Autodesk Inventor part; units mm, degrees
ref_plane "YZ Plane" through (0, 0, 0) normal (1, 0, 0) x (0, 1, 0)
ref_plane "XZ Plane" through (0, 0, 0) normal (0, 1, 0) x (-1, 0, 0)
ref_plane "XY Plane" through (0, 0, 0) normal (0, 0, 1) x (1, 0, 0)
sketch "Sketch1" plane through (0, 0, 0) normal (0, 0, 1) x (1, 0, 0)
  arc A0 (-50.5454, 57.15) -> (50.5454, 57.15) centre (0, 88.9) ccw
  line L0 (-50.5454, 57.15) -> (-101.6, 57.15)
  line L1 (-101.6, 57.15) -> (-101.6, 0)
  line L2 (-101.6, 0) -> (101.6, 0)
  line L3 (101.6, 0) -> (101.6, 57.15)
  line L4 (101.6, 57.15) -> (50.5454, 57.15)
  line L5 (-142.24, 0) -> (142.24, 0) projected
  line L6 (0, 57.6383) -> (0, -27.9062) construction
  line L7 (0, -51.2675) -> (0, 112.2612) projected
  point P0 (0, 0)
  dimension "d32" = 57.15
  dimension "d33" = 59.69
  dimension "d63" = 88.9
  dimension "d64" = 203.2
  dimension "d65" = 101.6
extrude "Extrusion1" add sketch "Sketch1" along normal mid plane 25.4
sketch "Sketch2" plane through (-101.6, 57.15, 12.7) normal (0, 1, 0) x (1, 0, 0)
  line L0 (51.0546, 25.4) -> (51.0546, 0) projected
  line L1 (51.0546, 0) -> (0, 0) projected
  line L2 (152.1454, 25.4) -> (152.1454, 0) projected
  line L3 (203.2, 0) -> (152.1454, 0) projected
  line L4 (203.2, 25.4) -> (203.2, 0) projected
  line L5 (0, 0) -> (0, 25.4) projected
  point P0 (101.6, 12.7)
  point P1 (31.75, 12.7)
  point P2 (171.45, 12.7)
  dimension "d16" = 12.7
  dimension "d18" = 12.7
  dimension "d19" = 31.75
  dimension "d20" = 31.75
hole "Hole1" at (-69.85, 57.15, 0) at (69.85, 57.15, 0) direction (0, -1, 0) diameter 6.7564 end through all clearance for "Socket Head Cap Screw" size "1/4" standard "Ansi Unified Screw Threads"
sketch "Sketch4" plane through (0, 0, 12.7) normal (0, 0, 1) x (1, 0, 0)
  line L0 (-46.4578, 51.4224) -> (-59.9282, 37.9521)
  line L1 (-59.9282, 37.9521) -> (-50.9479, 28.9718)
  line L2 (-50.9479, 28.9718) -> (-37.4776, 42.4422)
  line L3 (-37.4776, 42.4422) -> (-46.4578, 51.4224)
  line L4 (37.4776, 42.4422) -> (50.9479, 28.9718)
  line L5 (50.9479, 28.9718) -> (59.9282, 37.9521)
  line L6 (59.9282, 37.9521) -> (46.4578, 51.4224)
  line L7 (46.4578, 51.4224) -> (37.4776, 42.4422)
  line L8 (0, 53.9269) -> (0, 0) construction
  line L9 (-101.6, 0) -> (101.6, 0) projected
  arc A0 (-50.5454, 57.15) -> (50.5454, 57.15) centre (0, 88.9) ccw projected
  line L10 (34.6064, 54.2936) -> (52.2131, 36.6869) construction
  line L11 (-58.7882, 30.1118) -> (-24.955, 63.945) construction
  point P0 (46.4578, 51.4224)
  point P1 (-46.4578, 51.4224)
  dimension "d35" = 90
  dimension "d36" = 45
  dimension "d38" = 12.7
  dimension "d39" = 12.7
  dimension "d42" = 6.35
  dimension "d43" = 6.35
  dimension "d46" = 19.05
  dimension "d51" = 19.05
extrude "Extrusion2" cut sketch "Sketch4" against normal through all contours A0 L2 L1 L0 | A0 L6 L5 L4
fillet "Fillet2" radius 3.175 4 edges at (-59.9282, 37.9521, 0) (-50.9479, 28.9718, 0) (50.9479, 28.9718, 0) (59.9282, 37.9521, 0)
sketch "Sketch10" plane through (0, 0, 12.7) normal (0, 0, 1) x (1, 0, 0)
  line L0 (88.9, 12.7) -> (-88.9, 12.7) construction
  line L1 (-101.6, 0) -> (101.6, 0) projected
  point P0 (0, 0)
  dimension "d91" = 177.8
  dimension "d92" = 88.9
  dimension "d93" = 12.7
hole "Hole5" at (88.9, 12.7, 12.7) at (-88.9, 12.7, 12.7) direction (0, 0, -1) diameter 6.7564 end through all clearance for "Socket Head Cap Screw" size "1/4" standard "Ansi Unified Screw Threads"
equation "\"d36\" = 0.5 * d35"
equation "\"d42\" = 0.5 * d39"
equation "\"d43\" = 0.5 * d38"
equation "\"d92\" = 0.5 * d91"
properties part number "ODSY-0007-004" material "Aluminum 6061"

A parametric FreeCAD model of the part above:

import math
import FreeCAD as App
import Part
import Sketcher
from FreeCAD import Vector
Q = App.Units.Quantity


def edges_at(feature, points):
    """Names of the edges that pass closest to the given points."""
    edges = feature.Shape.Edges
    near = lambda p: min(range(len(edges)), key=lambda i: edges[i].distToShape(Part.Vertex(*p))[0])
    return sorted({f"Edge{near(p) + 1}" for p in points})

doc = App.newDocument("Part")
body = doc.addObject("PartDesign::Body", "Body")

sketch1 = body.newObject("Sketcher::SketchObject", "Sketch")
sketch1.AttachmentSupport = (doc.getObject("XY_Plane"), [""])
sketch1.MapMode = "FlatFace"
sketch1.addGeometry(Part.LineSegment(Vector(-51, 57, 0), Vector(-102, 57, 0)), False)
sketch1.addGeometry(Part.LineSegment(Vector(-102, 57, 0), Vector(-102, 0, 0)), False)
sketch1.addGeometry(Part.LineSegment(Vector(-102, 0, 0), Vector(102, 0, 0)), False)
sketch1.addGeometry(Part.LineSegment(Vector(102, 0, 0), Vector(102, 57, 0)), False)
sketch1.addGeometry(Part.LineSegment(Vector(102, 57, 0), Vector(51, 57, 0)), False)
sketch1.addGeometry(Part.ArcOfCircle(Part.Circle(Vector(0, 89, 0), Vector(0, 0, 1), 60), math.radians(-148), math.radians(-32)), False)
sketch1.addConstraint(Sketcher.Constraint("Coincident", 0, 2, 1, 1))
sketch1.addConstraint(Sketcher.Constraint("Coincident", 1, 2, 2, 1))
sketch1.addConstraint(Sketcher.Constraint("Coincident", 2, 2, 3, 1))
sketch1.addConstraint(Sketcher.Constraint("Coincident", 3, 2, 4, 1))
sketch1.addConstraint(Sketcher.Constraint("Coincident", 4, 2, 5, 2))
sketch1.addConstraint(Sketcher.Constraint("Coincident", 5, 1, 0, 1))
sketch1.addConstraint(Sketcher.Constraint("Horizontal", 0))
sketch1.addConstraint(Sketcher.Constraint("Vertical", 1))
sketch1.addConstraint(Sketcher.Constraint("Horizontal", 2))
sketch1.addConstraint(Sketcher.Constraint("Vertical", 3))
sketch1.addConstraint(Sketcher.Constraint("Horizontal", 4))
sketch1.addConstraint(Sketcher.Constraint("Symmetric", 1, 2, 2, 2, -1, 1))
sketch1.addConstraint(Sketcher.Constraint("Symmetric", 4, 2, 5, 1, -2))
sketch1.addConstraint(Sketcher.Constraint("DistanceX", 2, 1, 2, 2, Q("8 in")))
sketch1.addConstraint(Sketcher.Constraint("Radius", 5, Q("2.35 in")))
sketch1.addConstraint(Sketcher.Constraint("DistanceY", 1, 2, 1, 1, Q("2.25 in")))
sketch1.addConstraint(Sketcher.Constraint("DistanceY", -1, 1, 5, 3, Q("3.5 in")))
pad1 = body.newObject("PartDesign::Pad", "Pad")
pad1.Profile = sketch1
pad1.Length = Q("1 in")
pad1.Midplane = True

sketch2 = body.newObject("Sketcher::SketchObject", "Sketch001")
sketch2.AttachmentSupport = (doc.getObject("XZ_Plane"), [""])
sketch2.MapMode = "FlatFace"
sketch2.AttachmentOffset = App.Placement(Vector(0, 0, -2.25 * 25.4), App.Rotation())
sketch2.addGeometry(Part.Circle(Vector(-69.8, 0, 0), Vector(0, 0, 1), 3.4), False)
sketch2.addGeometry(Part.Circle(Vector(69.8, 0, 0), Vector(0, 0, 1), 3.4), False)
sketch2.addConstraint(Sketcher.Constraint("Equal", 0, 1))
sketch2.addConstraint(Sketcher.Constraint("Symmetric", 0, 3, 1, 3, -1, 1))
sketch2.addConstraint(Sketcher.Constraint("PointOnObject", 0, 3, -1))
sketch2.addConstraint(Sketcher.Constraint("Diameter", 0, Q("0.266 in")))
sketch2.addConstraint(Sketcher.Constraint("DistanceX", 0, 3, 1, 3, Q("5.5 in")))
doc.recompute()
hole = body.newObject("PartDesign::Hole", "Hole")
hole.Profile = sketch2
hole.ThreadType = "None"
hole.Diameter = Q("0.266 in")
hole.DepthType = "ThroughAll"
hole.Reversed = True

sketch3 = body.newObject("Sketcher::SketchObject", "Sketch002")
sketch3.AttachmentSupport = (doc.getObject("XY_Plane"), [""])
sketch3.MapMode = "FlatFace"
sketch3.AttachmentOffset = App.Placement(Vector(0, 0, 0.5 * 25.4), App.Rotation())
sketch3.addGeometry(Part.ArcOfCircle(Part.Circle(Vector(0, 89, 0), Vector(0, 0, 1), 60), math.radians(-141.11), math.radians(-128.89)), False)
sketch3.addGeometry(Part.LineSegment(Vector(-46, 51, 0), Vector(-60, 38, 0)), False)
sketch3.addGeometry(Part.LineSegment(Vector(-60, 38, 0), Vector(-51, 29, 0)), False)
sketch3.addGeometry(Part.LineSegment(Vector(-51, 29, 0), Vector(-37, 42, 0)), False)
sketch3.addGeometry(Part.ArcOfCircle(Part.Circle(Vector(0, 89, 0), Vector(0, 0, 1), 60), math.radians(-51.11), math.radians(-38.89)), False)
sketch3.addGeometry(Part.LineSegment(Vector(37, 42, 0), Vector(51, 29, 0)), False)
sketch3.addGeometry(Part.LineSegment(Vector(51, 29, 0), Vector(60, 38, 0)), False)
sketch3.addGeometry(Part.LineSegment(Vector(60, 38, 0), Vector(46, 51, 0)), False)
sketch3.addConstraint(Sketcher.Constraint("Coincident", 0, 1, 1, 1))
sketch3.addConstraint(Sketcher.Constraint("Coincident", 1, 2, 2, 1))
sketch3.addConstraint(Sketcher.Constraint("Coincident", 2, 2, 3, 1))
sketch3.addConstraint(Sketcher.Constraint("Coincident", 3, 2, 0, 2))
sketch3.addConstraint(Sketcher.Constraint("Coincident", 4, 1, 5, 1))
sketch3.addConstraint(Sketcher.Constraint("Coincident", 5, 2, 6, 1))
sketch3.addConstraint(Sketcher.Constraint("Coincident", 6, 2, 7, 1))
sketch3.addConstraint(Sketcher.Constraint("Coincident", 7, 2, 4, 2))
sketch3.addConstraint(Sketcher.Constraint("Coincident", 4, 3, 0, 3))
sketch3.addConstraint(Sketcher.Constraint("Equal", 0, 4))
sketch3.addConstraint(Sketcher.Constraint("Symmetric", 3, 2, 4, 1, -2))
sketch3.addConstraint(Sketcher.Constraint("Symmetric", 2, 2, 5, 2, -2))
sketch3.addConstraint(Sketcher.Constraint("Symmetric", 1, 2, 6, 2, -2))
sketch3.addConstraint(Sketcher.Constraint("Perpendicular", 1, 2))
sketch3.addConstraint(Sketcher.Constraint("Perpendicular", 2, 3))
sketch3.addConstraint(Sketcher.Constraint("Perpendicular", 3, 5))
sketch3.addConstraint(Sketcher.Constraint("Perpendicular", 6, 7))
sketch3.addConstraint(Sketcher.Constraint("Equal", 1, 3))
sketch3.addConstraint(Sketcher.Constraint("Distance", 2, Q("0.5 in")))
sketch3.addConstraint(Sketcher.Constraint("Distance", 1, Q("0.75 in")))
sketch3.addConstraint(Sketcher.Constraint("Radius", 0, Q("2.35 in")))
sketch3.addConstraint(Sketcher.Constraint("DistanceY", -1, 1, 0, 3, Q("3.5 in")))
pocket1 = body.newObject("PartDesign::Pocket", "Pocket")
pocket1.Profile = sketch3
pocket1.Type = "ThroughAll"
doc.recompute()

fillet = body.newObject("PartDesign::Fillet", "Fillet")
fillet.Base = (pocket1, edges_at(pocket1, [
    (-59.928, 37.952, 0),
    (-50.948, 28.972, 0),
    (50.948, 28.972, 0),
    (59.928, 37.952, 0),
]))
fillet.Radius = Q("0.125 in")

sketch4 = body.newObject("Sketcher::SketchObject", "Sketch003")
sketch4.AttachmentSupport = (doc.getObject("XY_Plane"), [""])
sketch4.MapMode = "FlatFace"
sketch4.AttachmentOffset = App.Placement(Vector(0, 0, 0.5 * 25.4), App.Rotation())
sketch4.addGeometry(Part.Circle(Vector(88.9, 12.7, 0), Vector(0, 0, 1), 3.4), False)
sketch4.addGeometry(Part.Circle(Vector(-88.9, 12.7, 0), Vector(0, 0, 1), 3.4), False)
sketch4.addConstraint(Sketcher.Constraint("Equal", 0, 1))
sketch4.addConstraint(Sketcher.Constraint("Symmetric", 0, 3, 1, 3, -2))
sketch4.addConstraint(Sketcher.Constraint("Diameter", 0, Q("0.266 in")))
sketch4.addConstraint(Sketcher.Constraint("DistanceX", 1, 3, 0, 3, Q("7 in")))
sketch4.addConstraint(Sketcher.Constraint("DistanceY", -1, 1, 0, 3, Q("0.5 in")))
doc.recompute()
hole2 = body.newObject("PartDesign::Hole", "Hole001")
hole2.Profile = sketch4
hole2.ThreadType = "None"
hole2.Diameter = Q("0.266 in")
hole2.DepthType = "ThroughAll"

doc.recompute()
